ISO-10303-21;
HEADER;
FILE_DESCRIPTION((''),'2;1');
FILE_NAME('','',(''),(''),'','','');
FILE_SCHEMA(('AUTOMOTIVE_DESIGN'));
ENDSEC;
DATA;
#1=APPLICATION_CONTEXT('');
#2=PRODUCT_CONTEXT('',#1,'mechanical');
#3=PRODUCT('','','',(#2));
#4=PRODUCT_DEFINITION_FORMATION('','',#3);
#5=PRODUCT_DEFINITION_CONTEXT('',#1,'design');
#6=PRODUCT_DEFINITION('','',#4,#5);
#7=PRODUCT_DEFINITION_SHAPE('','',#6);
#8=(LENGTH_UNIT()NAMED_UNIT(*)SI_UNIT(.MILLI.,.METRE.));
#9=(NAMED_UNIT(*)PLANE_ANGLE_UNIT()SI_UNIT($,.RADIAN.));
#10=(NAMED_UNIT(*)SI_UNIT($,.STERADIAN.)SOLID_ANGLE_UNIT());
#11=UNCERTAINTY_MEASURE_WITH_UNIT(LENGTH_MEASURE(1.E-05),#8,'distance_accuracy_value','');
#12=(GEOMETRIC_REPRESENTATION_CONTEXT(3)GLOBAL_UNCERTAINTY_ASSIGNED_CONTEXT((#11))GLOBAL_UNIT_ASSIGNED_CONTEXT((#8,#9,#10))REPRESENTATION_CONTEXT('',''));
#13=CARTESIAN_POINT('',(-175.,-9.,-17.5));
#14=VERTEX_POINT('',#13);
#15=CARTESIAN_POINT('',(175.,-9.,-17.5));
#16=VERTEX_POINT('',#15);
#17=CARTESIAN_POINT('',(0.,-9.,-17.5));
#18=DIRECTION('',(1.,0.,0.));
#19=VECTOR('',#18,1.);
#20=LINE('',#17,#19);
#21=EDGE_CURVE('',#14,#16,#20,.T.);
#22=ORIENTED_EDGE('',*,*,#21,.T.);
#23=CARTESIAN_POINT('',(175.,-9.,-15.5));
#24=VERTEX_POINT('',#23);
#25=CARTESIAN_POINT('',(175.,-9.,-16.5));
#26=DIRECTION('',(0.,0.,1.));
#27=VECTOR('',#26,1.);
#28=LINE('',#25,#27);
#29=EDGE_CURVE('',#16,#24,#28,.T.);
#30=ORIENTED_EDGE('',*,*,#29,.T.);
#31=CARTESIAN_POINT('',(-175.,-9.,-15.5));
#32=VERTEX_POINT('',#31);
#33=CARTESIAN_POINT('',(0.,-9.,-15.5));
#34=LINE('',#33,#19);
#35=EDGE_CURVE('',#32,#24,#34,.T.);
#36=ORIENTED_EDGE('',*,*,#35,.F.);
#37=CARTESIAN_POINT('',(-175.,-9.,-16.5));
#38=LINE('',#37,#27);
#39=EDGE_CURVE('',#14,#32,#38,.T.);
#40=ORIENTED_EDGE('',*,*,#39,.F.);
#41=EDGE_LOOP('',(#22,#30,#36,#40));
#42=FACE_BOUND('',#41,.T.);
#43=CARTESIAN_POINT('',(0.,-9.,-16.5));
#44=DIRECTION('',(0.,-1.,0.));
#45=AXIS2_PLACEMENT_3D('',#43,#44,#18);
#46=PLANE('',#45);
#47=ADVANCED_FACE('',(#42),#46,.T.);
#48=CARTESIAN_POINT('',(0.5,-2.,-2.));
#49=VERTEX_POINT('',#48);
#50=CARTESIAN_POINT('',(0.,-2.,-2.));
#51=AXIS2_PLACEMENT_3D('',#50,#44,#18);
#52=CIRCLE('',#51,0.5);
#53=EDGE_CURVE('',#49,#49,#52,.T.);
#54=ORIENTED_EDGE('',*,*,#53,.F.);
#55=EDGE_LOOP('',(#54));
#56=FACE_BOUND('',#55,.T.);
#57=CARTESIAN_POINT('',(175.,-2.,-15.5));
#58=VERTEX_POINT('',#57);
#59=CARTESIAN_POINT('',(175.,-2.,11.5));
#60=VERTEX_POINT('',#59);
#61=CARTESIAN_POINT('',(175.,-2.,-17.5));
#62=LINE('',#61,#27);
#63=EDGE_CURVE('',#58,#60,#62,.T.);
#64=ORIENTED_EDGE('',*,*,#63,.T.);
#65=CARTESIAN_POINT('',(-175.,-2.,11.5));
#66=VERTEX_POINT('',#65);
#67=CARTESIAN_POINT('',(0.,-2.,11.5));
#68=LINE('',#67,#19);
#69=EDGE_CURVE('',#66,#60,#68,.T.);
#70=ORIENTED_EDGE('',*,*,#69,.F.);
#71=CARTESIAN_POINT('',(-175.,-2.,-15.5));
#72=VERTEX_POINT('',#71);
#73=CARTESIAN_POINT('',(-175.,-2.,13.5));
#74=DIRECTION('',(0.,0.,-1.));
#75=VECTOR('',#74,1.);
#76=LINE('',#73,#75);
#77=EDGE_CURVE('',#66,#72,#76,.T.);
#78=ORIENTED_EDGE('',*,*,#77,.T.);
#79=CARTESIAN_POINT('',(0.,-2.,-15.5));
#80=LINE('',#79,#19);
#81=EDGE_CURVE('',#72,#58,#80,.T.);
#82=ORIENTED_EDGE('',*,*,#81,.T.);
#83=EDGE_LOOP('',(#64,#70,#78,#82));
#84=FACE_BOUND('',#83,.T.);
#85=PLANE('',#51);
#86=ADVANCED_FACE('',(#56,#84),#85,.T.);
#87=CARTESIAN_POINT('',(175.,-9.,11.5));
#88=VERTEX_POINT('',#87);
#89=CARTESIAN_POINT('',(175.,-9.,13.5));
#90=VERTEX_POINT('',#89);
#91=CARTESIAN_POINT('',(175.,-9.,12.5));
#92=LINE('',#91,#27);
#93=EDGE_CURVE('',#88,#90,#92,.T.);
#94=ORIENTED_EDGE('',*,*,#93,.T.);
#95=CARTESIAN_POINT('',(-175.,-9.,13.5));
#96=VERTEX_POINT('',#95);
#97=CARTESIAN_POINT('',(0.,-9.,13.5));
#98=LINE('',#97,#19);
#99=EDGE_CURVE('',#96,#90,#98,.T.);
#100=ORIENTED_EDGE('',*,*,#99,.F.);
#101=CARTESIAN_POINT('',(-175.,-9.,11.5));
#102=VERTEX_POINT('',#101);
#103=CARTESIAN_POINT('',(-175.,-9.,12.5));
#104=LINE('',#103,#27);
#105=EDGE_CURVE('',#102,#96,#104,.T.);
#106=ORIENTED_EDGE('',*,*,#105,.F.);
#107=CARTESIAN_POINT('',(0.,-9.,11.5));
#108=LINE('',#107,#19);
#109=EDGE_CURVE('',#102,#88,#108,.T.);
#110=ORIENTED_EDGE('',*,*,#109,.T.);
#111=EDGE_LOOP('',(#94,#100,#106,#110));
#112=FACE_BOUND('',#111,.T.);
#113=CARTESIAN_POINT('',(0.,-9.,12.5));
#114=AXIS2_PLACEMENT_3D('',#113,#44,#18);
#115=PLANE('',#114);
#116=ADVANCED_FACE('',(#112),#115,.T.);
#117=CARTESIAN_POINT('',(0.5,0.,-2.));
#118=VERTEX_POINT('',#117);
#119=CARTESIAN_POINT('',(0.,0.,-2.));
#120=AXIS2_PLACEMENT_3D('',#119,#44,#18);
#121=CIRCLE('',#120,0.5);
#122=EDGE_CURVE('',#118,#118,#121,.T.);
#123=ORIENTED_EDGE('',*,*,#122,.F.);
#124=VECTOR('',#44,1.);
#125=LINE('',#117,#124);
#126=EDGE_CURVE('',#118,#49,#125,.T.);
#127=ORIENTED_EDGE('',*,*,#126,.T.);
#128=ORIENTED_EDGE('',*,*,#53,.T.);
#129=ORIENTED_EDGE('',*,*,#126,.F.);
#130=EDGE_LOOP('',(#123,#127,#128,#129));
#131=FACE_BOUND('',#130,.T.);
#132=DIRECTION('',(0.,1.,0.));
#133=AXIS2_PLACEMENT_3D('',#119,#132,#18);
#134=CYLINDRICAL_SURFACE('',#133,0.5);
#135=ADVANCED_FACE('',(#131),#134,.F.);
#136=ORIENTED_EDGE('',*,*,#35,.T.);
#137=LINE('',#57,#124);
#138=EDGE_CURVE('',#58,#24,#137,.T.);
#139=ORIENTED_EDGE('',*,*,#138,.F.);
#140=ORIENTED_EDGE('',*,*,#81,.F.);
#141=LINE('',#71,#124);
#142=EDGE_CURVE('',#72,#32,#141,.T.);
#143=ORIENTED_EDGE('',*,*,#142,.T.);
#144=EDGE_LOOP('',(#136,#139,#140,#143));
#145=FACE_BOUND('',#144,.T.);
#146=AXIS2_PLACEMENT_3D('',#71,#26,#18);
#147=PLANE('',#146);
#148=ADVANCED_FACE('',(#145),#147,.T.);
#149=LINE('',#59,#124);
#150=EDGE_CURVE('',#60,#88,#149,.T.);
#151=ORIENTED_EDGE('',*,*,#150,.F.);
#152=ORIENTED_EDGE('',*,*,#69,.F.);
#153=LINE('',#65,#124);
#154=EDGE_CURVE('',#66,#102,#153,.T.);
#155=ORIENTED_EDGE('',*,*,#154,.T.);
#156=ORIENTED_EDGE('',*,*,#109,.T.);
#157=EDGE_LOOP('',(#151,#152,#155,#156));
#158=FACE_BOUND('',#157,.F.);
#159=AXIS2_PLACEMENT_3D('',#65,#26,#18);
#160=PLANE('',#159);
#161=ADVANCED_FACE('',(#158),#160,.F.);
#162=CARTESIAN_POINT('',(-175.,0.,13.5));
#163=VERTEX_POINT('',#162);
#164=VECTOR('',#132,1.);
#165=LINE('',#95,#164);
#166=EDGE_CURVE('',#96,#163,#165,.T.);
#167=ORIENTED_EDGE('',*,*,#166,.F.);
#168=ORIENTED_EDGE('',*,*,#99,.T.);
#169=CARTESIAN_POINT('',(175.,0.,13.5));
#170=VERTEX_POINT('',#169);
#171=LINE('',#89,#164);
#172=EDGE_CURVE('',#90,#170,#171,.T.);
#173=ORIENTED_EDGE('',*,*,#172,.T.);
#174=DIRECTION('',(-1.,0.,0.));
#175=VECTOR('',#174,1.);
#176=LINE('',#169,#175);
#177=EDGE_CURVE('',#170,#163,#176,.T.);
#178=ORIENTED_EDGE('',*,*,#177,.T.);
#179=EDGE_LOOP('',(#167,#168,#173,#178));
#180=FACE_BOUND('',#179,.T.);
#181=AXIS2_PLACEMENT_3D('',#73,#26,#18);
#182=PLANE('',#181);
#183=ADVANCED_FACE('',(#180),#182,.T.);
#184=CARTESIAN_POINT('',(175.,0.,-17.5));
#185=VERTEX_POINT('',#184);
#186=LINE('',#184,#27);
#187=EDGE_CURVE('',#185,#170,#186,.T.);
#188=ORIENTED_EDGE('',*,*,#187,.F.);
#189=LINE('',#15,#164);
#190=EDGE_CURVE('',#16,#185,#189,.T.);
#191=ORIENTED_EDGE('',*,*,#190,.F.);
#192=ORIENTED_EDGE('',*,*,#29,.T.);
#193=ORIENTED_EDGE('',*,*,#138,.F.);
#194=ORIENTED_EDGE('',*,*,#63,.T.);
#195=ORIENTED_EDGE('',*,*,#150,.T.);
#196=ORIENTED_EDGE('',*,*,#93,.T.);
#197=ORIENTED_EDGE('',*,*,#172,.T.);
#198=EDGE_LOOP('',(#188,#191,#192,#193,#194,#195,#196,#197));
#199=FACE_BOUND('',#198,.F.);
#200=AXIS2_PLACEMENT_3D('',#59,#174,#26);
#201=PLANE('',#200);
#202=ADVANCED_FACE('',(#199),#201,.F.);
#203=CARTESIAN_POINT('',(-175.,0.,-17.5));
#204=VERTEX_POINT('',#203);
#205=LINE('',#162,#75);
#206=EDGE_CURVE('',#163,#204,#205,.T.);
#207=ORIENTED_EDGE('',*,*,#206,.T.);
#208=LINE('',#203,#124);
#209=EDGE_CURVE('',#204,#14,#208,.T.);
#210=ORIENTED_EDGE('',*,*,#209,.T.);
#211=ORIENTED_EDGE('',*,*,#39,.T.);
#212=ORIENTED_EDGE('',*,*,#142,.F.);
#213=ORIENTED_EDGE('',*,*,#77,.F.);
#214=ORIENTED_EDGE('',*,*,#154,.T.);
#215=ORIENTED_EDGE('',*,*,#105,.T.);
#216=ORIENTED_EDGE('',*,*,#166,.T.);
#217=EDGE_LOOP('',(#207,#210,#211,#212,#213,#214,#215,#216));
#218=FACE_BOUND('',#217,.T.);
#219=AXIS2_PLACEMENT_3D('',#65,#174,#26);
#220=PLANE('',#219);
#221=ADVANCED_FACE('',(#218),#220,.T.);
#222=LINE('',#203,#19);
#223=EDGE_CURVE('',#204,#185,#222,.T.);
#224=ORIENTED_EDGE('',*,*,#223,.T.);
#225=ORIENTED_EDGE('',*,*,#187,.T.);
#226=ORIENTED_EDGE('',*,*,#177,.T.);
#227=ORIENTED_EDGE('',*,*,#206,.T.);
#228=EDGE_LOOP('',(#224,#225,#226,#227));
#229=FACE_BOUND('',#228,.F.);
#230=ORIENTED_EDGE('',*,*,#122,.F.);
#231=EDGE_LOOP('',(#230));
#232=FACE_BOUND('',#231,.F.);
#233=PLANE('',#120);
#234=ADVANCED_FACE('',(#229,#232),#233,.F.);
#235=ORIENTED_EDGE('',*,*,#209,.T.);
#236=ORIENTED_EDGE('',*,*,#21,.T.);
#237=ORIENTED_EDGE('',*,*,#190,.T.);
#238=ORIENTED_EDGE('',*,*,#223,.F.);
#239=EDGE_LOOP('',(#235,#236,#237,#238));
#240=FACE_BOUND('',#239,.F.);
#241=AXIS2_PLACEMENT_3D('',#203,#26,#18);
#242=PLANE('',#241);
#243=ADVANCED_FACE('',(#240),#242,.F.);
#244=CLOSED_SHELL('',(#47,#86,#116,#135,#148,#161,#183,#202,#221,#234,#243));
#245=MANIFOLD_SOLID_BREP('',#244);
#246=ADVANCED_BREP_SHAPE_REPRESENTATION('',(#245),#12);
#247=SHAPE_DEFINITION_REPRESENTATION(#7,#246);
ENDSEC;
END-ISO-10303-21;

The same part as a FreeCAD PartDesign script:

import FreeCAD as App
import Part
import Sketcher
from FreeCAD import Vector

doc = App.newDocument("Part")
body = doc.addObject("PartDesign::Body", "Body")

# Sketch on XZ plane
sketch1 = body.newObject("Sketcher::SketchObject", "Sketch")
sketch1.AttachmentSupport = (doc.getObject("XZ_Plane"), [""])
sketch1.MapMode = "FlatFace"
sketch1.addGeometry(Part.LineSegment(Vector(175, 13.5, 0), Vector(-175, 13.5, 0)), False)
sketch1.addGeometry(Part.LineSegment(Vector(-175, 13.5, 0), Vector(-175, -17.5, 0)), False)
sketch1.addGeometry(Part.LineSegment(Vector(-175, -17.5, 0), Vector(175, -17.5, 0)), False)
sketch1.addGeometry(Part.LineSegment(Vector(175, -17.5, 0), Vector(175, 13.5, 0)), False)
sketch1.addGeometry(Part.Circle(Vector(0, -2, 0), Vector(0, 0, 1), 0.5), False)
sketch1.addConstraint(Sketcher.Constraint("Coincident", 0, 2, 1, 1))
sketch1.addConstraint(Sketcher.Constraint("Coincident", 1, 2, 2, 1))
sketch1.addConstraint(Sketcher.Constraint("Coincident", 2, 2, 3, 1))
sketch1.addConstraint(Sketcher.Constraint("Coincident", 3, 2, 0, 1))
sketch1.addConstraint(Sketcher.Constraint("Horizontal", 0))
sketch1.addConstraint(Sketcher.Constraint("Vertical", 1))
sketch1.addConstraint(Sketcher.Constraint("Horizontal", 2))
sketch1.addConstraint(Sketcher.Constraint("Vertical", 3))
sketch1.addConstraint(Sketcher.Constraint("PointOnObject", 4, 3, -2))
sketch1.addConstraint(Sketcher.Constraint("Diameter", 4, 1.0))
sketch1.addConstraint(Sketcher.Constraint("DistanceX", 0, 2, 0, 1, 350.0))
sketch1.addConstraint(Sketcher.Constraint("DistanceY", 1, 2, 1, 1, 31.0))
sketch1.addConstraint(Sketcher.Constraint("DistanceY", 4, 3, -1, 1, 2.0))
sketch1.addConstraint(Sketcher.Constraint("DistanceX", 0, 2, -1, 1, 175.0))
sketch1.addConstraint(Sketcher.Constraint("DistanceY", -1, 1, 0, 2, 13.5))
pad1 = body.newObject("PartDesign::Pad", "Pad")
pad1.Profile = sketch1
pad1.Length = 2

# Sketch on XZ plane
sketch2 = body.newObject("Sketcher::SketchObject", "Sketch001")
sketch2.AttachmentSupport = (doc.getObject("XZ_Plane"), [""])
sketch2.MapMode = "FlatFace"
sketch2.AttachmentOffset = App.Placement(Vector(0, 0, 2), App.Rotation())
sketch2.addGeometry(Part.LineSegment(Vector(-175, 13.5, 0), Vector(-175, 11.5, 0)), False)
sketch2.addGeometry(Part.LineSegment(Vector(-175, 11.5, 0), Vector(175, 11.5, 0)), False)
sketch2.addGeometry(Part.LineSegment(Vector(175, 11.5, 0), Vector(175, 13.5, 0)), False)
sketch2.addGeometry(Part.LineSegment(Vector(175, 13.5, 0), Vector(-175, 13.5, 0)), False)
sketch2.addGeometry(Part.LineSegment(Vector(-175, -15.5, 0), Vector(-175, -17.5, 0)), False)
sketch2.addGeometry(Part.LineSegment(Vector(-175, -17.5, 0), Vector(175, -17.5, 0)), False)
sketch2.addGeometry(Part.LineSegment(Vector(175, -17.5, 0), Vector(175, -15.5, 0)), False)
sketch2.addGeometry(Part.LineSegment(Vector(175, -15.5, 0), Vector(-175, -15.5, 0)), False)
sketch2.addConstraint(Sketcher.Constraint("Coincident", 0, 2, 1, 1))
sketch2.addConstraint(Sketcher.Constraint("Coincident", 1, 2, 2, 1))
sketch2.addConstraint(Sketcher.Constraint("Coincident", 2, 2, 3, 1))
sketch2.addConstraint(Sketcher.Constraint("Coincident", 3, 2, 0, 1))
sketch2.addConstraint(Sketcher.Constraint("Coincident", 4, 2, 5, 1))
sketch2.addConstraint(Sketcher.Constraint("Coincident", 5, 2, 6, 1))
sketch2.addConstraint(Sketcher.Constraint("Coincident", 6, 2, 7, 1))
sketch2.addConstraint(Sketcher.Constraint("Coincident", 7, 2, 4, 1))
sketch2.addConstraint(Sketcher.Constraint("Vertical", 0))
sketch2.addConstraint(Sketcher.Constraint("Horizontal", 1))
sketch2.addConstraint(Sketcher.Constraint("Vertical", 2))
sketch2.addConstraint(Sketcher.Constraint("Horizontal", 3))
sketch2.addConstraint(Sketcher.Constraint("Vertical", 4))
sketch2.addConstraint(Sketcher.Constraint("Horizontal", 5))
sketch2.addConstraint(Sketcher.Constraint("Vertical", 6))
sketch2.addConstraint(Sketcher.Constraint("Horizontal", 7))
sketch2.addConstraint(Sketcher.Constraint("Vertical", 3, 2, 4, 2))
sketch2.addConstraint(Sketcher.Constraint("Vertical", 2, 2, 5, 2))
sketch2.addConstraint(Sketcher.Constraint("Equal", 2, 4))
sketch2.addConstraint(Sketcher.Constraint("DistanceX", 1, 1, 1, 2, 350.0))
sketch2.addConstraint(Sketcher.Constraint("DistanceY", 0, 2, 0, 1, 2.0))
sketch2.addConstraint(Sketcher.Constraint("DistanceX", 0, 2, -1, 1, 175.0))
sketch2.addConstraint(Sketcher.Constraint("DistanceY", 4, 2, 0, 2, 29.0))
sketch2.addConstraint(Sketcher.Constraint("DistanceY", -1, 1, 0, 2, 11.5))
pad2 = body.newObject("PartDesign::Pad", "Pad001")
pad2.Profile = sketch2
pad2.Length = 7

# Sketch on XZ plane
sketch3 = body.newObject("Sketcher::SketchObject", "Sketch002")
sketch3.AttachmentSupport = (doc.getObject("XZ_Plane"), [""])
sketch3.MapMode = "FlatFace"
sketch3.addGeometry(Part.LineSegment(Vector(175, 13.5, 0), Vector(-175, 13.5, 0)), False)
sketch3.addGeometry(Part.LineSegment(Vector(-175, 13.5, 0), Vector(-175, -17.5, 0)), False)
sketch3.addGeometry(Part.LineSegment(Vector(-175, -17.5, 0), Vector(175, -17.5, 0)), False)
sketch3.addGeometry(Part.LineSegment(Vector(175, -17.5, 0), Vector(175, 13.5, 0)), False)
sketch3.addGeometry(Part.Circle(Vector(0, -2, 0), Vector(0, 0, 1), 0.5), False)
sketch3.addConstraint(Sketcher.Constraint("Coincident", 0, 2, 1, 1))
sketch3.addConstraint(Sketcher.Constraint("Coincident", 1, 2, 2, 1))
sketch3.addConstraint(Sketcher.Constraint("Coincident", 2, 2, 3, 1))
sketch3.addConstraint(Sketcher.Constraint("Coincident", 3, 2, 0, 1))
sketch3.addConstraint(Sketcher.Constraint("Horizontal", 0))
sketch3.addConstraint(Sketcher.Constraint("Vertical", 1))
sketch3.addConstraint(Sketcher.Constraint("Horizontal", 2))
sketch3.addConstraint(Sketcher.Constraint("Vertical", 3))
sketch3.addConstraint(Sketcher.Constraint("PointOnObject", 4, 3, -2))
sketch3.addConstraint(Sketcher.Constraint("Diameter", 4, 1.0))
sketch3.addConstraint(Sketcher.Constraint("DistanceX", 0, 2, 0, 1, 350.0))
sketch3.addConstraint(Sketcher.Constraint("DistanceY", 1, 2, 1, 1, 31.0))
sketch3.addConstraint(Sketcher.Constraint("DistanceY", 4, 3, -1, 1, 2.0))
sketch3.addConstraint(Sketcher.Constraint("DistanceX", 0, 2, -1, 1, 175.0))
sketch3.addConstraint(Sketcher.Constraint("DistanceY", -1, 1, 0, 2, 13.5))
pocket1 = body.newObject("PartDesign::Pocket", "Pocket")
pocket1.Profile = sketch3
pocket1.Length = 2
body2 = doc.addObject("PartDesign::Body", "Body001")
doc.recompute()

body2.BaseFeature = body
doc.recompute()
body.Visibility = False

doc.recompute()
